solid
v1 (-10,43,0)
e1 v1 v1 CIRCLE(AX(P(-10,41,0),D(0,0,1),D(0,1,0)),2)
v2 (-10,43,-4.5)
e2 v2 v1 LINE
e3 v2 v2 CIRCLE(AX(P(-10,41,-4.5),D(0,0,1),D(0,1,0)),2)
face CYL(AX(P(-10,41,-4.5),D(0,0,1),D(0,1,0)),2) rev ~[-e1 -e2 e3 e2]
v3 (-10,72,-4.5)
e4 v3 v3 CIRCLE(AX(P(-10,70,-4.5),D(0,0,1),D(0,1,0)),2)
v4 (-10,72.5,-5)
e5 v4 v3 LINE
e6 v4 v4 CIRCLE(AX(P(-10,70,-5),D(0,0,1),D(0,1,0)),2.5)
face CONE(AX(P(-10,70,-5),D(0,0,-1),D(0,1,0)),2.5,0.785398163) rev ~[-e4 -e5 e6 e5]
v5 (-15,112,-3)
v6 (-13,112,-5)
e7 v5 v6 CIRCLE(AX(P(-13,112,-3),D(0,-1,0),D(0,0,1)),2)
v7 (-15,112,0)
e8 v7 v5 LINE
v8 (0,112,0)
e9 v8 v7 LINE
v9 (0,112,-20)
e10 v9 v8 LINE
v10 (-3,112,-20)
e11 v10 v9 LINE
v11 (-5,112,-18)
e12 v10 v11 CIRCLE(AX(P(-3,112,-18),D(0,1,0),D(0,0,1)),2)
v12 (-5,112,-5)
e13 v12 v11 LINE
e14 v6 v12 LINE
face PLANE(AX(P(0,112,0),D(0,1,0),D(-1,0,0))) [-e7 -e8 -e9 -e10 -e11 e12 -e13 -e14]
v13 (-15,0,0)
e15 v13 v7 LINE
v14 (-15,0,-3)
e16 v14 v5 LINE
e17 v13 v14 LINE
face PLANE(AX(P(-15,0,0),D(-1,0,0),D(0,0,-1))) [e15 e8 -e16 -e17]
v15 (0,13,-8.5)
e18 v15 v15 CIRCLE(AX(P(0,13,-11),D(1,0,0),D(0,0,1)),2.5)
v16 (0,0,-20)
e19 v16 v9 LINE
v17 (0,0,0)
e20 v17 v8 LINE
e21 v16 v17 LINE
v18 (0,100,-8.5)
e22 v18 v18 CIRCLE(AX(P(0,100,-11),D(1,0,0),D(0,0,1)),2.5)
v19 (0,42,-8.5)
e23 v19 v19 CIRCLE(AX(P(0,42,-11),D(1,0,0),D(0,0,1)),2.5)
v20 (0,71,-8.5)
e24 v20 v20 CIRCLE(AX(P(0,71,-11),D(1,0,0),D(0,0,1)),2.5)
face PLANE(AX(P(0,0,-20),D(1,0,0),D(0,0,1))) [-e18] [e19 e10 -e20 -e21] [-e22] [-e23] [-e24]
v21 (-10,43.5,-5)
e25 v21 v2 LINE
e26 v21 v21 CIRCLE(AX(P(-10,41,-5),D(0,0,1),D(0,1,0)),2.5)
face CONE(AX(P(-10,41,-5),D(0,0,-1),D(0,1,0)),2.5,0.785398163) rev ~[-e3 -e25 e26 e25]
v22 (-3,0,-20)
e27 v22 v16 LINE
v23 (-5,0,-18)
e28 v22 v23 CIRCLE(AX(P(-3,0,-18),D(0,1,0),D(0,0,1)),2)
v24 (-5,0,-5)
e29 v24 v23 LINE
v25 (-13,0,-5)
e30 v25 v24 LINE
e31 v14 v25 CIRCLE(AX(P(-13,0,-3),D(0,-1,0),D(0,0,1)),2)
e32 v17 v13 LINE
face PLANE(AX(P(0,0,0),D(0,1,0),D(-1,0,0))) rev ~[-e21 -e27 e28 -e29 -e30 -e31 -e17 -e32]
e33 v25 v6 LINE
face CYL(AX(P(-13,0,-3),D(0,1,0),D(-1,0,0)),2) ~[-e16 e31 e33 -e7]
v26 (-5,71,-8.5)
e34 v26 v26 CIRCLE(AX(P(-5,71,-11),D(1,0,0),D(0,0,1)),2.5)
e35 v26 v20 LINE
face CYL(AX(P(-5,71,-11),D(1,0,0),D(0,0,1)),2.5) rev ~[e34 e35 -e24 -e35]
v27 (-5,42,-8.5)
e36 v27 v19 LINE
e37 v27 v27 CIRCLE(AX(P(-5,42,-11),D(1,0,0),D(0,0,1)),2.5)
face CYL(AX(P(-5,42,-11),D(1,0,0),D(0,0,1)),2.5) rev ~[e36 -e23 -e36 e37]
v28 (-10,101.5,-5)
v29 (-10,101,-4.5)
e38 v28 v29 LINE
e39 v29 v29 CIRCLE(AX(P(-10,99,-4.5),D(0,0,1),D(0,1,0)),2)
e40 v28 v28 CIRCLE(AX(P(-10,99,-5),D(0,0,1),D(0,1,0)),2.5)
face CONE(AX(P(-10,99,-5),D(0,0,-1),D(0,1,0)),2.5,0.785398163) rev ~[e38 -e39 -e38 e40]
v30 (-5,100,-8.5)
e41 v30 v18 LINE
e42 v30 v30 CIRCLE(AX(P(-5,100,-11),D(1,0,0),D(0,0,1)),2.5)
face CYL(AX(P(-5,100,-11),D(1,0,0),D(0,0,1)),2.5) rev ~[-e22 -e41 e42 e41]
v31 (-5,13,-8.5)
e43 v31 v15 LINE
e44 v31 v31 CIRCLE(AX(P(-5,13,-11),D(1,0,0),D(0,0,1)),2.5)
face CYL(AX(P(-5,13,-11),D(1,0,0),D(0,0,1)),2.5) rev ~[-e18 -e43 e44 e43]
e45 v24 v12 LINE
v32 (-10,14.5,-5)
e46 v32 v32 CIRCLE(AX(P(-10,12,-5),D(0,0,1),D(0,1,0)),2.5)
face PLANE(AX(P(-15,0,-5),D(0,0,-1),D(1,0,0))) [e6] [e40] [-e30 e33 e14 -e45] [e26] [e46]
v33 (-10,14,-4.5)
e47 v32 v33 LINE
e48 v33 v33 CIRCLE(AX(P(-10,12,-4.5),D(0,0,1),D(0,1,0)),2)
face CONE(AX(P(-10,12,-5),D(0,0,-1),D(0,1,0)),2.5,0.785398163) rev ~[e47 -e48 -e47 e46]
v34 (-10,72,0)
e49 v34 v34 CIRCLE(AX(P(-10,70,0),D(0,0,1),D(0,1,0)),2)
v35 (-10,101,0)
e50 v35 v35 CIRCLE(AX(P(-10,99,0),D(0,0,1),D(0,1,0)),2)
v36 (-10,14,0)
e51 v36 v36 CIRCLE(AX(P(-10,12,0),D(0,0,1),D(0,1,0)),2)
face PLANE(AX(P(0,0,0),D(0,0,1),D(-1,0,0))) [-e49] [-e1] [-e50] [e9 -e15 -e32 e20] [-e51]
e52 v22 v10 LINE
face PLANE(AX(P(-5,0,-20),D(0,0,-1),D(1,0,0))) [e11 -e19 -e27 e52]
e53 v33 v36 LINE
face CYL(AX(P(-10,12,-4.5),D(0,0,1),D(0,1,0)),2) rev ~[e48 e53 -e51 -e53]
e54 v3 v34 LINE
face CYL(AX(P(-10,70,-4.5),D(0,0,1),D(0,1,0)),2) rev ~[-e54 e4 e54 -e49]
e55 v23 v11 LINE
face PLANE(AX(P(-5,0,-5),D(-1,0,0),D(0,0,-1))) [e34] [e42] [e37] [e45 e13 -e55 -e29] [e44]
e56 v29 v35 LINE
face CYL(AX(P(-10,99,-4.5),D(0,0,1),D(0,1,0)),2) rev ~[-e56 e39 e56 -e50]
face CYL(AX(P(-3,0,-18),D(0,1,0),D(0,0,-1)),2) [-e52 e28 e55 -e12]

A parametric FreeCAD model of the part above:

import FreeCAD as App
import Part
import Sketcher
Q = App.Units.Quantity


def edges_at(feature, points):
    """Names of the edges that pass closest to the given points."""
    edges = feature.Shape.Edges
    near = lambda p: min(range(len(edges)), key=lambda i: edges[i].distToShape(Part.Vertex(*p))[0])
    return sorted({f"Edge{near(p) + 1}" for p in points})


def add_polygon(sketch, points):
    """Adds a closed chain of lines whose ends are joined by coincident constraints."""
    first, n = sketch.GeometryCount, len(points)
    for a, b in zip(points, points[1:] + points[:1]):
        sketch.addGeometry(Part.LineSegment(App.Vector(*a, 0), App.Vector(*b, 0)), False)
    for i in range(n):
        sketch.addConstraint(Sketcher.Constraint("Coincident", first + i, 2, first + (i + 1) % n, 1))

doc = App.newDocument("Part")
params = doc.addObject("Spreadsheet::Sheet", "Params")
for row, (alias, value) in enumerate([
    ("sketch1_width", "15 mm"),
    ("sketch1_width2", "5 mm"),
    ("pad1_length", "112 mm"),
    ("sketch2_diameter", "4 mm"),
    ("hole_diameter", "4 mm"),
    ("hole_depth", "5 mm"),
    ("hole_csink_diameter", "5 mm"),
    ("sketch3_diameter", "5 mm"),
    ("hole2_diameter", "5 mm"),
    ("fillet_radius", "2 mm"),
], start=1):
    params.set(f"A{row}", alias)
    params.set(f"B{row}", "=" + value)
    params.setAlias(f"B{row}", alias)

body = doc.addObject("PartDesign::Body", "Body")

sketch1 = body.newObject("Sketcher::SketchObject", "Sketch")
sketch1.AttachmentSupport = (doc.getObject("XZ_Plane"), [""])
sketch1.MapMode = "FlatFace"
add_polygon(sketch1, [(-15, 0), (0, 0), (0, -20), (-5, -20), (-5, -5), (-15, -5)])
sketch1.addConstraint([
    Sketcher.Constraint("Horizontal", 0),
    Sketcher.Constraint("Vertical", 1),
    Sketcher.Constraint("Horizontal", 2),
    Sketcher.Constraint("Vertical", 3),
    Sketcher.Constraint("Horizontal", 4),
    Sketcher.Constraint("Vertical", 5),
    Sketcher.Constraint("Coincident", 0, 2, -1, 1),
    Sketcher.Constraint("Equal", 0, 3),
    Sketcher.Constraint("Equal", 2, 5),
    Sketcher.Constraint("DistanceX", 0, 1, 0, 2, Q("15 mm")),
    Sketcher.Constraint("DistanceX", 2, 2, 2, 1, Q("5 mm")),
])
sketch1.setExpression("Constraints[15]", "Params.sketch1_width")
sketch1.setExpression("Constraints[16]", "Params.sketch1_width2")
pad1 = body.newObject("PartDesign::Pad", "Pad")
pad1.Profile = sketch1
pad1.setExpression("Length", "Params.pad1_length")
pad1.Reversed = True

sketch2 = body.newObject("Sketcher::SketchObject", "Sketch001")
sketch2.AttachmentSupport = (doc.getObject("XY_Plane"), [""])
sketch2.MapMode = "FlatFace"
sketch2.AttachmentOffset = App.Placement(App.Vector(0, 0, -5), App.Rotation())
sketch2.addGeometry([
    Part.Circle(App.Vector(-10, 99, 0), App.Vector(0, 0, 1), 2),
    Part.Circle(App.Vector(-10, 70, 0), App.Vector(0, 0, 1), 2),
    Part.Circle(App.Vector(-10, 41, 0), App.Vector(0, 0, 1), 2),
    Part.Circle(App.Vector(-10, 12, 0), App.Vector(0, 0, 1), 2),
], False)
sketch2.addConstraint([
    Sketcher.Constraint("Equal", 0, 1),
    Sketcher.Constraint("Equal", 1, 2),
    Sketcher.Constraint("Equal", 2, 3),
    Sketcher.Constraint("Vertical", 0, 3, 1, 3),
    Sketcher.Constraint("Vertical", 1, 3, 2, 3),
    Sketcher.Constraint("Vertical", 2, 3, 3, 3),
    Sketcher.Constraint("Diameter", 0, Q("4 mm")),
    Sketcher.Constraint("DistanceX", 0, 3, -1, 1, Q("10 mm")),
    Sketcher.Constraint("DistanceY", -1, 1, 0, 3, Q("99 mm")),
    Sketcher.Constraint("DistanceY", -1, 1, 1, 3, Q("70 mm")),
    Sketcher.Constraint("DistanceY", -1, 1, 2, 3, Q("41 mm")),
    Sketcher.Constraint("DistanceY", -1, 1, 3, 3, Q("12 mm")),
])
sketch2.setExpression("Constraints[6]", "Params.sketch2_diameter")
doc.recompute()
hole = body.newObject("PartDesign::Hole", "Hole")
hole.Profile = sketch2
hole.ThreadType = "None"
hole.setExpression("Diameter", "Params.hole_diameter")
hole.DepthType = "Dimension"
hole.setExpression("Depth", "Params.hole_depth")
hole.DrillPoint = "Flat"
hole.HoleCutType = "Countersink"
hole.setExpression("HoleCutDiameter", "Params.hole_csink_diameter")
hole.HoleCutCountersinkAngle = 90
hole.Reversed = True

sketch3 = body.newObject("Sketcher::SketchObject", "Sketch002")
sketch3.AttachmentSupport = (doc.getObject("YZ_Plane"), [""])
sketch3.MapMode = "FlatFace"
sketch3.AttachmentOffset = App.Placement(App.Vector(0, 0, -5), App.Rotation())
sketch3.addGeometry([
    Part.Circle(App.Vector(100, -11, 0), App.Vector(0, 0, 1), 2.5),
    Part.Circle(App.Vector(71, -11, 0), App.Vector(0, 0, 1), 2.5),
    Part.Circle(App.Vector(42, -11, 0), App.Vector(0, 0, 1), 2.5),
    Part.Circle(App.Vector(13, -11, 0), App.Vector(0, 0, 1), 2.5),
], False)
sketch3.addConstraint([
    Sketcher.Constraint("Equal", 0, 1),
    Sketcher.Constraint("Equal", 1, 2),
    Sketcher.Constraint("Equal", 2, 3),
    Sketcher.Constraint("Horizontal", 0, 3, 1, 3),
    Sketcher.Constraint("Horizontal", 1, 3, 2, 3),
    Sketcher.Constraint("Horizontal", 2, 3, 3, 3),
    Sketcher.Constraint("Diameter", 0, Q("5 mm")),
    Sketcher.Constraint("DistanceX", -1, 1, 0, 3, Q("100 mm")),
    Sketcher.Constraint("DistanceY", 0, 3, -1, 1, Q("11 mm")),
    Sketcher.Constraint("DistanceX", -1, 1, 1, 3, Q("71 mm")),
    Sketcher.Constraint("DistanceX", -1, 1, 2, 3, Q("42 mm")),
    Sketcher.Constraint("DistanceX", -1, 1, 3, 3, Q("13 mm")),
])
sketch3.setExpression("Constraints[6]", "Params.sketch3_diameter")
doc.recompute()
hole2 = body.newObject("PartDesign::Hole", "Hole001")
hole2.Profile = sketch3
hole2.ThreadType = "None"
hole2.setExpression("Diameter", "Params.hole2_diameter")
hole2.DepthType = "ThroughAll"
hole2.Reversed = True
doc.recompute()

fillet = body.newObject("PartDesign::Fillet", "Fillet")
fillet.Base = (hole2, edges_at(hole2, [(-5, 56, -20), (-15, 56, -5)]))
fillet.setExpression("Radius", "Params.fillet_radius")

doc.recompute()
